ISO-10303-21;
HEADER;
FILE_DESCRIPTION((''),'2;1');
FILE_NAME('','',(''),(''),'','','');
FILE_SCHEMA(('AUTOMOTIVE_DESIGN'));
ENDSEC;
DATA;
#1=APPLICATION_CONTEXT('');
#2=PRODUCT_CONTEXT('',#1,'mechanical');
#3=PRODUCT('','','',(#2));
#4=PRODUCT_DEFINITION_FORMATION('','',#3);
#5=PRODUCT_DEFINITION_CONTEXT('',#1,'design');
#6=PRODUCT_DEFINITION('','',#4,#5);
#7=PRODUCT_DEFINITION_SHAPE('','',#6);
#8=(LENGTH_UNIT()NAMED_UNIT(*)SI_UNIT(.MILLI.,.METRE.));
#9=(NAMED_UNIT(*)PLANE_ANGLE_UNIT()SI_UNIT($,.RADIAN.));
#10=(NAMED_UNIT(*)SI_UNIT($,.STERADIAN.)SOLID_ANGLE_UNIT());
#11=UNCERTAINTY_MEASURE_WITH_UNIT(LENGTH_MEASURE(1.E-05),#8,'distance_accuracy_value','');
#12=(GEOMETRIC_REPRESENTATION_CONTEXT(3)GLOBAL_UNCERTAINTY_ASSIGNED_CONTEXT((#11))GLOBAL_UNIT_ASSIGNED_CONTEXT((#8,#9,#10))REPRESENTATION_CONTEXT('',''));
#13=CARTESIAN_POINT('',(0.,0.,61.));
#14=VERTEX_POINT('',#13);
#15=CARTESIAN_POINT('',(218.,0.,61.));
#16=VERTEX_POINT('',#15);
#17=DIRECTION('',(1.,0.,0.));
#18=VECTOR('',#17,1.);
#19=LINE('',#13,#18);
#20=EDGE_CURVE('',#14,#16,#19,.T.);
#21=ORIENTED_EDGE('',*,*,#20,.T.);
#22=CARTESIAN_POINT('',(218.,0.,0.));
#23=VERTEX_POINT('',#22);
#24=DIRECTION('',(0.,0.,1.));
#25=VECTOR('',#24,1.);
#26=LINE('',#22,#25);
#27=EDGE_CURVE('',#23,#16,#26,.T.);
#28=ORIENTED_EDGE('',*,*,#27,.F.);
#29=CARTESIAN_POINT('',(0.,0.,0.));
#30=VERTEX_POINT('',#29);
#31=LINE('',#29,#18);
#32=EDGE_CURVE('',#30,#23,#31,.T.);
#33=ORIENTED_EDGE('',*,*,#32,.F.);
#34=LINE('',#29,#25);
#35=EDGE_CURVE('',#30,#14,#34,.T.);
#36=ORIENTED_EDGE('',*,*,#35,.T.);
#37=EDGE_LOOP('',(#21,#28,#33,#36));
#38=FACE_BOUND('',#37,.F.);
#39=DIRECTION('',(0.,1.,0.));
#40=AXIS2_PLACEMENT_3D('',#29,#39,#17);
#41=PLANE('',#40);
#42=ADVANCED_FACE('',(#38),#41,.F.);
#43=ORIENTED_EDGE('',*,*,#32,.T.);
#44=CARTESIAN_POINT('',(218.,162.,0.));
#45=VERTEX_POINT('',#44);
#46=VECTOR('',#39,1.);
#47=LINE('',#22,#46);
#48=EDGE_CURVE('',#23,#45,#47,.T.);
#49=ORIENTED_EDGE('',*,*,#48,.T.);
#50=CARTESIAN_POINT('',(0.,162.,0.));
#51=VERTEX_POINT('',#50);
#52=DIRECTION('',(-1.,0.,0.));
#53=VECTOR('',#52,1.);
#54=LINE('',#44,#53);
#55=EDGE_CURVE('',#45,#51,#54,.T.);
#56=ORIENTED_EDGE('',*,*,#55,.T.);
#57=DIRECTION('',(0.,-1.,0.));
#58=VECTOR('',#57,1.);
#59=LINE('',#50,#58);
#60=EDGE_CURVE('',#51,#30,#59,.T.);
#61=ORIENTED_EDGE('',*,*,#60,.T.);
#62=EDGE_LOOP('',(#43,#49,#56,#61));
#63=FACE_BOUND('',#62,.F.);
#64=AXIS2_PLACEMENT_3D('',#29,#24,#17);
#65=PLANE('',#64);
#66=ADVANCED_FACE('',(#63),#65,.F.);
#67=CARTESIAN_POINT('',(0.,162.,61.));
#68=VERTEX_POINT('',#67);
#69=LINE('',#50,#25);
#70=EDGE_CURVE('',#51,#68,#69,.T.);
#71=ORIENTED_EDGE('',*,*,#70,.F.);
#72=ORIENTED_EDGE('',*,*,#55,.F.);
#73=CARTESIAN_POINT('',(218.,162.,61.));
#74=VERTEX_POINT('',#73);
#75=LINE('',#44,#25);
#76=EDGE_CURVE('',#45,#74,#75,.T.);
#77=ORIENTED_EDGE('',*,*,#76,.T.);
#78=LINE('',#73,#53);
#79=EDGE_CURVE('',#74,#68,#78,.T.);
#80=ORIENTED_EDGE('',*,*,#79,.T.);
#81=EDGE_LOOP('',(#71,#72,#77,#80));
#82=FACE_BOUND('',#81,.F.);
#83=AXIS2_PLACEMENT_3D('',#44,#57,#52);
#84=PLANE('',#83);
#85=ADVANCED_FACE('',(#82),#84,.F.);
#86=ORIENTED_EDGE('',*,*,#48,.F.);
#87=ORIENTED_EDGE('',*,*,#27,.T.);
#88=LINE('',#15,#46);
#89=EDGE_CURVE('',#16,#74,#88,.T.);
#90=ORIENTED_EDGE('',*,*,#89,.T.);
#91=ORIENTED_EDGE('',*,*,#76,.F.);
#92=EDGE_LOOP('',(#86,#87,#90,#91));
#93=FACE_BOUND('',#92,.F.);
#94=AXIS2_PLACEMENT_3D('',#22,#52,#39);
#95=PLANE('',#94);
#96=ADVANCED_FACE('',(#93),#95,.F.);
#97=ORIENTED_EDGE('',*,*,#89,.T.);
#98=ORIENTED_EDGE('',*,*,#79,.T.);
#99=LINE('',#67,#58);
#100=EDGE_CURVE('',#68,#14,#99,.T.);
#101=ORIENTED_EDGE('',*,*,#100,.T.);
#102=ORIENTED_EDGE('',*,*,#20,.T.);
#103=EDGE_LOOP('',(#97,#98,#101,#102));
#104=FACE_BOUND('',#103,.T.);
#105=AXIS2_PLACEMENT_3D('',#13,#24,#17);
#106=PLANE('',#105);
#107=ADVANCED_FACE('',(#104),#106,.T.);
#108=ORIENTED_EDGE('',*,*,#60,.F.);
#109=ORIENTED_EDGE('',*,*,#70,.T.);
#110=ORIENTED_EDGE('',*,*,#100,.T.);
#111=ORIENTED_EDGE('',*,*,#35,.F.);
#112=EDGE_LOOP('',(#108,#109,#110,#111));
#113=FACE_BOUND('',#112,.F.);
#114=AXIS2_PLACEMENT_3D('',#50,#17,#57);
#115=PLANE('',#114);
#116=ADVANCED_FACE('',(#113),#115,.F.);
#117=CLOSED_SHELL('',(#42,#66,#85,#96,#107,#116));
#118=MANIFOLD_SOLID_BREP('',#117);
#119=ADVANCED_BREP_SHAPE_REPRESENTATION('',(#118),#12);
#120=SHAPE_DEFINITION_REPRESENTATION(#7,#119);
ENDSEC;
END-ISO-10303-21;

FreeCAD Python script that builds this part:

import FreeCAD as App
import Part
import Sketcher
Q = App.Units.Quantity


def add_polygon(sketch, points):
    """Adds a closed chain of lines whose ends are joined by coincident constraints."""
    first, n = sketch.GeometryCount, len(points)
    for a, b in zip(points, points[1:] + points[:1]):
        sketch.addGeometry(Part.LineSegment(App.Vector(*a, 0), App.Vector(*b, 0)), False)
    for i in range(n):
        sketch.addConstraint(Sketcher.Constraint("Coincident", first + i, 2, first + (i + 1) % n, 1))

doc = App.newDocument("Part")
body = doc.addObject("PartDesign::Body", "Body")

# Sketch on XY plane
sketch1 = body.newObject("Sketcher::SketchObject", "Sketch")
sketch1.AttachmentSupport = (doc.getObject("XY_Plane"), [""])
sketch1.MapMode = "FlatFace"
add_polygon(sketch1, [(0, 162), (0, 0), (218, 0), (218, 162)])  # lines 0-3
sketch1.addConstraint([
    Sketcher.Constraint("Vertical", 0),
    Sketcher.Constraint("Horizontal", 1),
    Sketcher.Constraint("Vertical", 2),
    Sketcher.Constraint("Horizontal", 3),
    Sketcher.Constraint("Coincident", 0, 2, -1, 1),
    Sketcher.Constraint("DistanceX", 1, 1, 1, 2, Q("218 mm")),
    Sketcher.Constraint("DistanceY", 0, 2, 0, 1, Q("162 mm")),
])
pad1 = body.newObject("PartDesign::Pad", "Pad")
pad1.Profile = sketch1
pad1.Length = 61

doc.recompute()
